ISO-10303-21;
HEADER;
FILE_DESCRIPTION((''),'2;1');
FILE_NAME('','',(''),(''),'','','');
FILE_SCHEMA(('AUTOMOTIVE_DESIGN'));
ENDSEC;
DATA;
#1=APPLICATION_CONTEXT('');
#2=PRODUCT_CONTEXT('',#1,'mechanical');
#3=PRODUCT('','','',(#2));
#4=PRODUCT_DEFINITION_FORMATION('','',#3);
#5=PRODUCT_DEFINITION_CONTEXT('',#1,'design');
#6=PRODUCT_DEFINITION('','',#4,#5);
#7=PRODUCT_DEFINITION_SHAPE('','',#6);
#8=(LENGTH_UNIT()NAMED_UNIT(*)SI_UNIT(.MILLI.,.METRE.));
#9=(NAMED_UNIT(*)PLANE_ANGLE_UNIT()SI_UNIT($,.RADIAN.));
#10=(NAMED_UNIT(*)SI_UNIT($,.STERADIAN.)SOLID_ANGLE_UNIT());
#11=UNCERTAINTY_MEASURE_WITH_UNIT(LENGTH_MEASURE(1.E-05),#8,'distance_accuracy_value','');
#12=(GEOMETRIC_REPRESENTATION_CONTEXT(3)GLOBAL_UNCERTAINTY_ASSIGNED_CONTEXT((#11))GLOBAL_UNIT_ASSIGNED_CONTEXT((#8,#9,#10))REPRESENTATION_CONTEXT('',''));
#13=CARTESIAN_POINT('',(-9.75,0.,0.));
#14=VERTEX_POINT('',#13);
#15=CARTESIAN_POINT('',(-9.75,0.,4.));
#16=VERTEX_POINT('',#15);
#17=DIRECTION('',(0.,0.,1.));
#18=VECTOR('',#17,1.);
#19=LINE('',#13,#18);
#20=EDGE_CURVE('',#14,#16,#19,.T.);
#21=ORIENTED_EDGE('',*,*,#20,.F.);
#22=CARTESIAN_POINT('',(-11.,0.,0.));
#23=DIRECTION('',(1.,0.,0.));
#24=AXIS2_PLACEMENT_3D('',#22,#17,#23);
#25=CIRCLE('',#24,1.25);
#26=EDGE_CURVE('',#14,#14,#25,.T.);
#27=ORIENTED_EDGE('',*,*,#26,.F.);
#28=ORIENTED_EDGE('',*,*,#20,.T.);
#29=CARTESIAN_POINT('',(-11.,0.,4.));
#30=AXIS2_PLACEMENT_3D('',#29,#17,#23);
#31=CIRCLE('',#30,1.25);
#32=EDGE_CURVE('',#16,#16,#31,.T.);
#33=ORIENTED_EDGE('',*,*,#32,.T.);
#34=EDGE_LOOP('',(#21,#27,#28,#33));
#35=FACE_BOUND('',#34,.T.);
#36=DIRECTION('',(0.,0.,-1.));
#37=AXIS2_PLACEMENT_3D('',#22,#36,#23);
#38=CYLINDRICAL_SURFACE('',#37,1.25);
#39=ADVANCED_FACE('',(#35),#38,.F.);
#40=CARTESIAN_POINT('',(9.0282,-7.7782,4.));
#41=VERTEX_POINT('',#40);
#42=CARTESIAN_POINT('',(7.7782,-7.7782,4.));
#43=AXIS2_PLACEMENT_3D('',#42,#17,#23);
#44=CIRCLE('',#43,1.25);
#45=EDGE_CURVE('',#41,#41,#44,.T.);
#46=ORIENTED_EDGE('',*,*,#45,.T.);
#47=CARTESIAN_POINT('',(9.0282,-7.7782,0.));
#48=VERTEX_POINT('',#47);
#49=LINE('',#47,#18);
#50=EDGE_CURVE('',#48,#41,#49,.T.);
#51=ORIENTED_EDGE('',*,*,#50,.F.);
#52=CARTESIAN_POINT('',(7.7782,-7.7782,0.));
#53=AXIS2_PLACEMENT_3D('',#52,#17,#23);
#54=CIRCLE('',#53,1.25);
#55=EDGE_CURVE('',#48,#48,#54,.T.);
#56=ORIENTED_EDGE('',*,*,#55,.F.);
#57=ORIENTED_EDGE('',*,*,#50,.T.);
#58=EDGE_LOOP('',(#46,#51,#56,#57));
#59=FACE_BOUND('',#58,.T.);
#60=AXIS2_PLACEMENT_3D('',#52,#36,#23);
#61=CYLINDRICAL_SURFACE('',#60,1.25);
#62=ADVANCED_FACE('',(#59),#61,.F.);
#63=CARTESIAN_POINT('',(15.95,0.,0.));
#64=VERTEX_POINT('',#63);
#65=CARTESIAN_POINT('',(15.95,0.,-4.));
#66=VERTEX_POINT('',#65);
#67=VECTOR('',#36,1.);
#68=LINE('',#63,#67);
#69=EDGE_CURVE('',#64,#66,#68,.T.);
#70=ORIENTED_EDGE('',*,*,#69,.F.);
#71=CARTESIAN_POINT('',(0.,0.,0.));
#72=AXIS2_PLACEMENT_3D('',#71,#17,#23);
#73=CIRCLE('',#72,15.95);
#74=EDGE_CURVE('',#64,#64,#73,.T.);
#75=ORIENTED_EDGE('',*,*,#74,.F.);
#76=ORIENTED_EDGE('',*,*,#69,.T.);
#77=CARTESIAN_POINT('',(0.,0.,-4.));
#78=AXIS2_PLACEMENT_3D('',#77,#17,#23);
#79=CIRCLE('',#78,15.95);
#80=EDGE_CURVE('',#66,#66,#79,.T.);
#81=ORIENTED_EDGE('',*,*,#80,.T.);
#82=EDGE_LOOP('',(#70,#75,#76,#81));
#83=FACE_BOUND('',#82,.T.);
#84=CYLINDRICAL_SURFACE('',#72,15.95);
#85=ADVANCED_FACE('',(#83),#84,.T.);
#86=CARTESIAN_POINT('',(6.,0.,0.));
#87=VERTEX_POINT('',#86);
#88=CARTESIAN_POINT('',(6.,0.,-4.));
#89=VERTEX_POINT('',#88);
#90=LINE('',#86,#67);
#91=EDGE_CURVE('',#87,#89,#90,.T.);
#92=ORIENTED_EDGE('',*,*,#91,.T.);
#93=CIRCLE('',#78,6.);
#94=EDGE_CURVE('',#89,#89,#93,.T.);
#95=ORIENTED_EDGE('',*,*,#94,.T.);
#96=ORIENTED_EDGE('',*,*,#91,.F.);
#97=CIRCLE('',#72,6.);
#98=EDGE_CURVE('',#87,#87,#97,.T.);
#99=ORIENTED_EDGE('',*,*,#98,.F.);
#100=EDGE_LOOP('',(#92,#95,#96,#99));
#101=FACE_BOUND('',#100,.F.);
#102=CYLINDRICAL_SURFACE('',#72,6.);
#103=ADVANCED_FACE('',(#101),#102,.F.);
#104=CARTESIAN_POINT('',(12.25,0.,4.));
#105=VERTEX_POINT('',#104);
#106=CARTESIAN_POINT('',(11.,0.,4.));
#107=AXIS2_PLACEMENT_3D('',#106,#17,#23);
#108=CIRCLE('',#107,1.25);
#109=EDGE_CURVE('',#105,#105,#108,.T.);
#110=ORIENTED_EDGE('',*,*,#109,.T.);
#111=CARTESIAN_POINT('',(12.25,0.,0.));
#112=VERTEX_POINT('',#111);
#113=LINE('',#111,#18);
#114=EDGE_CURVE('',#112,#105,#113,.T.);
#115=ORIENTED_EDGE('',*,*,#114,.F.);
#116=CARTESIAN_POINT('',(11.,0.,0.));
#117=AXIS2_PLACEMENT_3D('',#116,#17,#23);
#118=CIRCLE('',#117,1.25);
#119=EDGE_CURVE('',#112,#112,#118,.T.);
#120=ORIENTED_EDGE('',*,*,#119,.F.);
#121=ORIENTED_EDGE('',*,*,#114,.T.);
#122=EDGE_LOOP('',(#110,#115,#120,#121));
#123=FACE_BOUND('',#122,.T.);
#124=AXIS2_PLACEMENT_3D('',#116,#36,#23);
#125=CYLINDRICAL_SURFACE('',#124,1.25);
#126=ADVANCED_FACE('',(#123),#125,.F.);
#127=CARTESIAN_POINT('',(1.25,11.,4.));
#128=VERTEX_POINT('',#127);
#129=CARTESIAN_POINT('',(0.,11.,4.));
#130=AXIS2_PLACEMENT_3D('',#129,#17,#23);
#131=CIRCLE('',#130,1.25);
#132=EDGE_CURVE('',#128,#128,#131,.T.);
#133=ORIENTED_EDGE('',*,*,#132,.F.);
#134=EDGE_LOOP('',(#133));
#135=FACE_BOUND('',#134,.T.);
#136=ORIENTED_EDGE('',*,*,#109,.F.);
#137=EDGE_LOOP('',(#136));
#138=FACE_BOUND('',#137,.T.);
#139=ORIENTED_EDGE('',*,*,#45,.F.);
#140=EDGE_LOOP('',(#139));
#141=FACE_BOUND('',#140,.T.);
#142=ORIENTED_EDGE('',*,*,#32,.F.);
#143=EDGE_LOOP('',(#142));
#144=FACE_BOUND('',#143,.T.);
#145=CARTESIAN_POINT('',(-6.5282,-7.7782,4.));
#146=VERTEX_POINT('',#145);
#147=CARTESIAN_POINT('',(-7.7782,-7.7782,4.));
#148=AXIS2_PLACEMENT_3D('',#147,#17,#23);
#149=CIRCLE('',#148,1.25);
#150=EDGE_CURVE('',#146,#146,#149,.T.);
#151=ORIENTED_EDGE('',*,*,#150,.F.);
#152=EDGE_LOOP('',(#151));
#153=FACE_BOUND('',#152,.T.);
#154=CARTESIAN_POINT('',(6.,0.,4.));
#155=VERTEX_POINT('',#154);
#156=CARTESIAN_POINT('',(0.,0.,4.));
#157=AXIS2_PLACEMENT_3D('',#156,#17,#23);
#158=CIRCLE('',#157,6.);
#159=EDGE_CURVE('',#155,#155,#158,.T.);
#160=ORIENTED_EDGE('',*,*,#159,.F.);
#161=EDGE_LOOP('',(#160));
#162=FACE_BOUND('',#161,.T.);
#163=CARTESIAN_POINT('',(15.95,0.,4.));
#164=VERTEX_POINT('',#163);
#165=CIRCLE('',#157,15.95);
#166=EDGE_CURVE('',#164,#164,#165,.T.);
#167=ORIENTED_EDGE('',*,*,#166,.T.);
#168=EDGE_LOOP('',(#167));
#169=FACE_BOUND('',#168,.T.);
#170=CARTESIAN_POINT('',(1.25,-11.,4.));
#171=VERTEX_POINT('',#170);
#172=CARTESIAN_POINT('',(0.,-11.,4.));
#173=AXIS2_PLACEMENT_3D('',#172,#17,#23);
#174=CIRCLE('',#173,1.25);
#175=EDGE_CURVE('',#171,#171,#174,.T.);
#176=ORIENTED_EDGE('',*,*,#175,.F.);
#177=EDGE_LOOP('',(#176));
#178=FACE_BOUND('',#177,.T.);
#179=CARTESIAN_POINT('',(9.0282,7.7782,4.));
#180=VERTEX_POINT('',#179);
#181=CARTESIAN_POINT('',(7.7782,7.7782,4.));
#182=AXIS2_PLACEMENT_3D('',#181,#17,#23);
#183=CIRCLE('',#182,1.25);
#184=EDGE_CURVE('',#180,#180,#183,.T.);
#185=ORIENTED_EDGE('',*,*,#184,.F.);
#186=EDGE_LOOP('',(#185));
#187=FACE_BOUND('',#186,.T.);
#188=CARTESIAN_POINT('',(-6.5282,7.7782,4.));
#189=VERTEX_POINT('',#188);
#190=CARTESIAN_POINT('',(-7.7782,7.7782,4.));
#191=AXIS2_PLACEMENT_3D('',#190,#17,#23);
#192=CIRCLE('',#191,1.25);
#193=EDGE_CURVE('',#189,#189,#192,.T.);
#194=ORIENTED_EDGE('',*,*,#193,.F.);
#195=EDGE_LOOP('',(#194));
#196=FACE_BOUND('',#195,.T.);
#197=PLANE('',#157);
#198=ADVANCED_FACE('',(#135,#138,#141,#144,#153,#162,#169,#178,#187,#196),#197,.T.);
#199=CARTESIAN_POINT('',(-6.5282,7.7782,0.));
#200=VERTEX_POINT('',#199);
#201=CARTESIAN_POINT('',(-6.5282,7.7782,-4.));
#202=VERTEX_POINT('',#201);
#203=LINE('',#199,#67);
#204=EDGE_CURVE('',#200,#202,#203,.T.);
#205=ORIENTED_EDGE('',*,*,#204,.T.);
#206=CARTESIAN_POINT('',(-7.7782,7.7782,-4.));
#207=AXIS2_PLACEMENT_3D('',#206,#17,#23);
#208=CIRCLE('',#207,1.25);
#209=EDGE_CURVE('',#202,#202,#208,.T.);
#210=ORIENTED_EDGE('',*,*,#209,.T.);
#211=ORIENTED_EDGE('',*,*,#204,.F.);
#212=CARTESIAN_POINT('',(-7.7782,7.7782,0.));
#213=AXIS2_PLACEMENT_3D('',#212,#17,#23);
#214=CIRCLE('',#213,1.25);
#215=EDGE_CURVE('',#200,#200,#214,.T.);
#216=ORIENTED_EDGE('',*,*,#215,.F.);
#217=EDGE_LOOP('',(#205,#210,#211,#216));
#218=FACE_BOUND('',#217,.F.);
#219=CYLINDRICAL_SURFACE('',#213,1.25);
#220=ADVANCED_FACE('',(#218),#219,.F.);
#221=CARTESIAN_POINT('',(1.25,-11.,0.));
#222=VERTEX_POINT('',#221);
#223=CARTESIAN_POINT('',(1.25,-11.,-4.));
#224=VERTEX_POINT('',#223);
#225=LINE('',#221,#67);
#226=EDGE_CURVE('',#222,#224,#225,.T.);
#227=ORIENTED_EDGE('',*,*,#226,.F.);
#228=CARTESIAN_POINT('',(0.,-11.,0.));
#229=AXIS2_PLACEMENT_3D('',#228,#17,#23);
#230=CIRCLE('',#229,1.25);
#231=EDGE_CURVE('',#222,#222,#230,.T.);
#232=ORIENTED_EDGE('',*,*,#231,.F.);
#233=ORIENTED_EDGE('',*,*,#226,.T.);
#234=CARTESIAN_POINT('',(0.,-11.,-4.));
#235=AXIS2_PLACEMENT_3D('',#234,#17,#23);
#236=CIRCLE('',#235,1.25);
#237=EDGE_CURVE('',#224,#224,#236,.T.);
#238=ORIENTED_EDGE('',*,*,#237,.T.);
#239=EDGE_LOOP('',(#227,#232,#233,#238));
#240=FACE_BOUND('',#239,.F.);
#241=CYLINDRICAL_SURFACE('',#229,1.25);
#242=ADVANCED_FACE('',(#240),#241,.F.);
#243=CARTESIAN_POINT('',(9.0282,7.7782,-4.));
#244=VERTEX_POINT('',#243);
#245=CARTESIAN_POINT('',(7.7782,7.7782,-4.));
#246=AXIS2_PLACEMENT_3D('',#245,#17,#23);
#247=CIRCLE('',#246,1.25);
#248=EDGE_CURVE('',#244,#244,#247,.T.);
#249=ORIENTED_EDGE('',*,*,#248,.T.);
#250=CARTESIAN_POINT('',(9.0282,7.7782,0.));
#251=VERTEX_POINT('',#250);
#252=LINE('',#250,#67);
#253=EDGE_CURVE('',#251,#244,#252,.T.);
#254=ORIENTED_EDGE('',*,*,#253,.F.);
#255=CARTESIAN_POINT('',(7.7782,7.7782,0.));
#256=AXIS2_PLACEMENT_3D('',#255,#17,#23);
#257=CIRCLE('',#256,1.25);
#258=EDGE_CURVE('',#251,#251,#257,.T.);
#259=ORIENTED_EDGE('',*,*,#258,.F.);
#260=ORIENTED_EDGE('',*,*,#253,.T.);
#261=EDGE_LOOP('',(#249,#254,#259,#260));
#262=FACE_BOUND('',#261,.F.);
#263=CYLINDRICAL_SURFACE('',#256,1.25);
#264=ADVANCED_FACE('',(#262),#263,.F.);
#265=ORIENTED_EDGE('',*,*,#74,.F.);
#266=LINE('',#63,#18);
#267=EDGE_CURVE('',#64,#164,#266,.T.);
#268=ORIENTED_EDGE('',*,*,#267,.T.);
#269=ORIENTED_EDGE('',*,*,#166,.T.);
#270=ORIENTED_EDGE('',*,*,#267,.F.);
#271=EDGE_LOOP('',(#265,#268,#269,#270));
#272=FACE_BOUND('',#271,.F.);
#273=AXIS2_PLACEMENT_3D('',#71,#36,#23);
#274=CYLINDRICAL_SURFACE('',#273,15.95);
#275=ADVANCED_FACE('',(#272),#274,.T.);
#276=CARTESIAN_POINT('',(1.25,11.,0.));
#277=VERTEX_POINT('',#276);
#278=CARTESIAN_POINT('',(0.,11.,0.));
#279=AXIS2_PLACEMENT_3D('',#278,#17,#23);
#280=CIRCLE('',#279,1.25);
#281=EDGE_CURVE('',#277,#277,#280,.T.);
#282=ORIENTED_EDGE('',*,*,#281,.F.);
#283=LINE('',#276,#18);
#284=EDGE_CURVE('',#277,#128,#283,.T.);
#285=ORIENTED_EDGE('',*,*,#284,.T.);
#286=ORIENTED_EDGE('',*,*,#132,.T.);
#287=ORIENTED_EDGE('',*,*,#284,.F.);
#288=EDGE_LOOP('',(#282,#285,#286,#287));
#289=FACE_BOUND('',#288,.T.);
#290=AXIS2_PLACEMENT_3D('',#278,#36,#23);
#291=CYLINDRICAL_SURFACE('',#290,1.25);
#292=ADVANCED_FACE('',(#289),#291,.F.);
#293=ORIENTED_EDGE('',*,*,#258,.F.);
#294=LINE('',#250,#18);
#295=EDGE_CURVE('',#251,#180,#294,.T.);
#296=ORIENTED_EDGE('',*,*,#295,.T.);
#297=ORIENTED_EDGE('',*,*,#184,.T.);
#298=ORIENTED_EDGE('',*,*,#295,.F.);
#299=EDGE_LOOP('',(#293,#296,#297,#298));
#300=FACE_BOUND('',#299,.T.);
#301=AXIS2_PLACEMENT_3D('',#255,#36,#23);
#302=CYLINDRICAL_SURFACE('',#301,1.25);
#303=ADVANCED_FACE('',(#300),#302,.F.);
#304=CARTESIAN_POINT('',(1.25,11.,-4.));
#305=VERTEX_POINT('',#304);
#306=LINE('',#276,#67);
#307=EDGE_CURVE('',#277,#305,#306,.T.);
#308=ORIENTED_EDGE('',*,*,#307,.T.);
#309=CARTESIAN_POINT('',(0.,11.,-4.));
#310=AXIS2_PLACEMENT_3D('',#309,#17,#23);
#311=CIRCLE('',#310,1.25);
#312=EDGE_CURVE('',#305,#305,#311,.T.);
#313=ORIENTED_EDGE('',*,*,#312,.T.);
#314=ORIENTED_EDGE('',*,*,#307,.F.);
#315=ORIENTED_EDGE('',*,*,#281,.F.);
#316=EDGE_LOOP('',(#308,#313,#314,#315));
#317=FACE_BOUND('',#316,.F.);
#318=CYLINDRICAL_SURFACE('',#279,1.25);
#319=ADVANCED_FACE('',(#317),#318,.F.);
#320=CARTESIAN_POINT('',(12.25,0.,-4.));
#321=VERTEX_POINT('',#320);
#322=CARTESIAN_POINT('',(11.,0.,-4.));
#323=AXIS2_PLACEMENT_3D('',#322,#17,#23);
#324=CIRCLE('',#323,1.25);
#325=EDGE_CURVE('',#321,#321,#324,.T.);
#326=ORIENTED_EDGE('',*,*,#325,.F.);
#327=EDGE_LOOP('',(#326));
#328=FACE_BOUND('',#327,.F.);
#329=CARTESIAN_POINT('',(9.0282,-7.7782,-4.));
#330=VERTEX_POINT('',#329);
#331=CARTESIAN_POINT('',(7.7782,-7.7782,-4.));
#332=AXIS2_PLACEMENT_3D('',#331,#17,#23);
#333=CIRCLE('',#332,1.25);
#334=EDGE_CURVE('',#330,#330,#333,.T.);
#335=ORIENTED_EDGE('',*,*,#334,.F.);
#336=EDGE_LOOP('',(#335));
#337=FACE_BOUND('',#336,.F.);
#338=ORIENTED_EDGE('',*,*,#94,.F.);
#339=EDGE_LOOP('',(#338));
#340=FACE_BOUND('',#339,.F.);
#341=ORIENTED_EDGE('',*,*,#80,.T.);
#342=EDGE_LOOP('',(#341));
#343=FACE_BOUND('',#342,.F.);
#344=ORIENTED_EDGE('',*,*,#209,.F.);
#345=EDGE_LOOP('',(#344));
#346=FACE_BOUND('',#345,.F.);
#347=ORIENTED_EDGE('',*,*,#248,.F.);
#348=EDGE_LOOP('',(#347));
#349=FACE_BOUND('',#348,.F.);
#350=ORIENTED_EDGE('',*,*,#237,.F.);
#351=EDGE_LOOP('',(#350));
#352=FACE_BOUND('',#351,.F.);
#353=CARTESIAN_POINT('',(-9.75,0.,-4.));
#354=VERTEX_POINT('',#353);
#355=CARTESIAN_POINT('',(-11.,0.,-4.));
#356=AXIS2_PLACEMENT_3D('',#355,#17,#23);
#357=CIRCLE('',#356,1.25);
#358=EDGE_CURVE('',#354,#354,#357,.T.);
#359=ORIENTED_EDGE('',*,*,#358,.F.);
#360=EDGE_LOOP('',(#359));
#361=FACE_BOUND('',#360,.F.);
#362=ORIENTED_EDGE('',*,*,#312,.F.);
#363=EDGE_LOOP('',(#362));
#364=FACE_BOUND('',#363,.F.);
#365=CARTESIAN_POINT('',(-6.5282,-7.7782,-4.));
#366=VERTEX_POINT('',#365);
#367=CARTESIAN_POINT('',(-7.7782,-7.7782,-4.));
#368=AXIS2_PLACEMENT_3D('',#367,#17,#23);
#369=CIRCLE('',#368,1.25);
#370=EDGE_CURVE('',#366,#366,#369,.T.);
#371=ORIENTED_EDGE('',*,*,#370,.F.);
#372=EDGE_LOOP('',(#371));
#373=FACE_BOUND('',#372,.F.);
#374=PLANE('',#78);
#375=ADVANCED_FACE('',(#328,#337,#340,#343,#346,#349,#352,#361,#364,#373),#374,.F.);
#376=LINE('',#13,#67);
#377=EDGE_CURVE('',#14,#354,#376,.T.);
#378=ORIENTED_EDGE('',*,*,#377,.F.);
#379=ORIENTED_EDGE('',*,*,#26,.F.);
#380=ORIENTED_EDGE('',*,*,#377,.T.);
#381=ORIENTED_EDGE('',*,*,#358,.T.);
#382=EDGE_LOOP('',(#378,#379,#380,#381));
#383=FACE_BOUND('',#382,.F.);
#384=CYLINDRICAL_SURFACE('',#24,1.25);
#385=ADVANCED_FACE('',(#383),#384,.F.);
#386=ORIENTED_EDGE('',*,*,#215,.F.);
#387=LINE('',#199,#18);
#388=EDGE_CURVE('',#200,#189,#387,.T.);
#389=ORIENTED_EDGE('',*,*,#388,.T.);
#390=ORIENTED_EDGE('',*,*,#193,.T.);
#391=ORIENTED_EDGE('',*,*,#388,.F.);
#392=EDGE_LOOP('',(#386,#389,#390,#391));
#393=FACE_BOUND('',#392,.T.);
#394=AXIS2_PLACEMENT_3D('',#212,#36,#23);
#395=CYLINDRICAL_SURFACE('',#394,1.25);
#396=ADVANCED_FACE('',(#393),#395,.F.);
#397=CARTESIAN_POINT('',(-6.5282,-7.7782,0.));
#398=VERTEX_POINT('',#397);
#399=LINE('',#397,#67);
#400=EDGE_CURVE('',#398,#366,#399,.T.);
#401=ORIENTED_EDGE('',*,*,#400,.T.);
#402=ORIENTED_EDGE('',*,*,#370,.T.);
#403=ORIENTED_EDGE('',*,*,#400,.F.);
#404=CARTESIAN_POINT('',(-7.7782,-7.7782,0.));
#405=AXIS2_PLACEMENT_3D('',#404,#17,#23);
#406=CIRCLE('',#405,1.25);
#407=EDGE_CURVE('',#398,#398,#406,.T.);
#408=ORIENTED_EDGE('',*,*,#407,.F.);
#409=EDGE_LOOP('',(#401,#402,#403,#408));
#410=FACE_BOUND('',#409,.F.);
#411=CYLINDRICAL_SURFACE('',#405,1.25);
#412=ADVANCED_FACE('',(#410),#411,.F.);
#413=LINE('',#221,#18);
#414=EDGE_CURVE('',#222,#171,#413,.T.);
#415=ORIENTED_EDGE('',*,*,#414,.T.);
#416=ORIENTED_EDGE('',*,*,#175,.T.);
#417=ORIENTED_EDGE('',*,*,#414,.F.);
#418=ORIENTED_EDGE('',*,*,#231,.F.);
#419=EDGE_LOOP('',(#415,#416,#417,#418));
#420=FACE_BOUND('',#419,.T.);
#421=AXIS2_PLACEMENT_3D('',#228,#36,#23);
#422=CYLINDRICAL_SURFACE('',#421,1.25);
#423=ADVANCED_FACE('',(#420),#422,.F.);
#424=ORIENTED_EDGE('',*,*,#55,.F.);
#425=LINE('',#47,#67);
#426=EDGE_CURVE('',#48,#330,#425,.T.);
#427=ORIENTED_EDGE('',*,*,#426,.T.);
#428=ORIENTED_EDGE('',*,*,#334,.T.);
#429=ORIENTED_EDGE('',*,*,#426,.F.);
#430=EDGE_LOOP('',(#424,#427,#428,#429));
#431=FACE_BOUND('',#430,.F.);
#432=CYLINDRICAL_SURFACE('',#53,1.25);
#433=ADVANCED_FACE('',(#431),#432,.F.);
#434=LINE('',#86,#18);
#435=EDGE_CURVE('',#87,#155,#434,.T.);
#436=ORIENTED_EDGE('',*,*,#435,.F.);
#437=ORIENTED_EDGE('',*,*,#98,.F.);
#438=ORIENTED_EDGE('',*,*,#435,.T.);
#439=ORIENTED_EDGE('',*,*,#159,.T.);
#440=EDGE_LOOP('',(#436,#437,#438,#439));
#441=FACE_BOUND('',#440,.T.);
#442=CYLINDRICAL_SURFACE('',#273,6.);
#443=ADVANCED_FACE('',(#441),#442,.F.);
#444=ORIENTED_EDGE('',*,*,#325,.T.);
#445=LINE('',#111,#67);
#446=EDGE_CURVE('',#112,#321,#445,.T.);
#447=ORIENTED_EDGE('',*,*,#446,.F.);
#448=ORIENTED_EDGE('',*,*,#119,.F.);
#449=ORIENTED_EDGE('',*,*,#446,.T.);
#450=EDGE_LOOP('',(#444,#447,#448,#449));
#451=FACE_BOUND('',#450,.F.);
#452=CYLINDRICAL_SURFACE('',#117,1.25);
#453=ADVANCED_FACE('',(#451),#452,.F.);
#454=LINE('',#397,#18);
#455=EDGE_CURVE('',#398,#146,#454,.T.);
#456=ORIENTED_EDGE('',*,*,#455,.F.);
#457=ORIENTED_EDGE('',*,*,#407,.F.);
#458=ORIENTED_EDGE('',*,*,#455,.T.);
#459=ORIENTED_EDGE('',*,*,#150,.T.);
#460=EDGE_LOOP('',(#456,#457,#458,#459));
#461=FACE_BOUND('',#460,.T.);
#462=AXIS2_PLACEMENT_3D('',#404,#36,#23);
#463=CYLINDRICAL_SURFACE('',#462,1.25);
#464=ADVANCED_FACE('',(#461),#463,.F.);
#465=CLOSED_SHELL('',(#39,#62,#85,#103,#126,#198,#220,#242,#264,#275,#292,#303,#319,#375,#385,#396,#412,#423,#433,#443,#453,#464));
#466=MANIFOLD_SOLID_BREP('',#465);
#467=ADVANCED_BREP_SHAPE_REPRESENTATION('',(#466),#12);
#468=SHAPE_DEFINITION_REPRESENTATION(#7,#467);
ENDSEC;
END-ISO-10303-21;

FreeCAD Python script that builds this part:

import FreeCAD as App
import Part
import Sketcher

doc = App.newDocument("Part")
body = doc.addObject("PartDesign::Body", "Body")

# Sketch on XY plane
sketch1 = doc.addObject("Sketcher::SketchObject", "Sketch")
body.addObject(sketch1)
sketch1.AttachmentSupport = (doc.XY_Plane, [""])
sketch1.MapMode = "FlatFace"
sketch1.addGeometry([
    Part.Circle(App.Vector(0, 0, 0), App.Vector(0, 0, 1), 15.9),  # 0
    Part.Circle(App.Vector(-7.8, -7.8, 0), App.Vector(0, 0, 1), 1.2),  # 1
    Part.Circle(App.Vector(0, -11, 0), App.Vector(0, 0, 1), 1.2),  # 2
    Part.Circle(App.Vector(7.8, -7.8, 0), App.Vector(0, 0, 1), 1.2),  # 3
    Part.Circle(App.Vector(-11, 0, 0), App.Vector(0, 0, 1), 1.2),  # 4
    Part.Circle(App.Vector(-7.8, 7.8, 0), App.Vector(0, 0, 1), 1.2),  # 5
    Part.Circle(App.Vector(0, 0, 0), App.Vector(0, 0, 1), 6),  # 6
    Part.Circle(App.Vector(7.8, 7.8, 0), App.Vector(0, 0, 1), 1.2),  # 7
    Part.Circle(App.Vector(11, 0, 0), App.Vector(0, 0, 1), 1.2),  # 8
    Part.Circle(App.Vector(0, 11, 0), App.Vector(0, 0, 1), 1.2),  # 9
], False)
sketch1.addConstraint([
    Sketcher.Constraint("Coincident", 0, 3, -1, 1),
    Sketcher.Constraint("Coincident", 6, 3, -1, 1),
    Sketcher.Constraint("Equal", 1, 2),
    Sketcher.Constraint("Equal", 2, 3),
    Sketcher.Constraint("Equal", 3, 4),
    Sketcher.Constraint("Equal", 4, 5),
    Sketcher.Constraint("Equal", 5, 7),
    Sketcher.Constraint("Equal", 7, 8),
    Sketcher.Constraint("Equal", 8, 9),
    Sketcher.Constraint("Symmetric", 3, 3, 5, 3, -1, 1),
    Sketcher.Constraint("Symmetric", 1, 3, 7, 3, -1, 1),
    Sketcher.Constraint("Symmetric", 4, 3, 8, 3, -1, 1),
    Sketcher.Constraint("Symmetric", 2, 3, 9, 3, -1, 1),
    Sketcher.Constraint("Symmetric", 1, 3, 3, 3, -2),
    Sketcher.Constraint("PointOnObject", 2, 3, -2),
    Sketcher.Constraint("PointOnObject", 4, 3, -1),
    Sketcher.Constraint("Diameter", 6, 12.0),
    Sketcher.Constraint("Diameter", 0, 31.9),
    Sketcher.Constraint("Diameter", 1, 2.5),
    Sketcher.Constraint("DistanceY", 2, 3, -1, 1, 11.0),
    Sketcher.Constraint("DistanceX", 4, 3, -1, 1, 11.0),
    Sketcher.Constraint("DistanceX", 1, 3, -1, 1, 7.7782),
    Sketcher.Constraint("DistanceY", 1, 3, -1, 1, 7.7782),
])
pad1 = doc.addObject("PartDesign::Pad", "Pad")
body.addObject(pad1)
pad1.Profile = sketch1
pad1.Length = 8
pad1.Midplane = True

doc.recompute()
